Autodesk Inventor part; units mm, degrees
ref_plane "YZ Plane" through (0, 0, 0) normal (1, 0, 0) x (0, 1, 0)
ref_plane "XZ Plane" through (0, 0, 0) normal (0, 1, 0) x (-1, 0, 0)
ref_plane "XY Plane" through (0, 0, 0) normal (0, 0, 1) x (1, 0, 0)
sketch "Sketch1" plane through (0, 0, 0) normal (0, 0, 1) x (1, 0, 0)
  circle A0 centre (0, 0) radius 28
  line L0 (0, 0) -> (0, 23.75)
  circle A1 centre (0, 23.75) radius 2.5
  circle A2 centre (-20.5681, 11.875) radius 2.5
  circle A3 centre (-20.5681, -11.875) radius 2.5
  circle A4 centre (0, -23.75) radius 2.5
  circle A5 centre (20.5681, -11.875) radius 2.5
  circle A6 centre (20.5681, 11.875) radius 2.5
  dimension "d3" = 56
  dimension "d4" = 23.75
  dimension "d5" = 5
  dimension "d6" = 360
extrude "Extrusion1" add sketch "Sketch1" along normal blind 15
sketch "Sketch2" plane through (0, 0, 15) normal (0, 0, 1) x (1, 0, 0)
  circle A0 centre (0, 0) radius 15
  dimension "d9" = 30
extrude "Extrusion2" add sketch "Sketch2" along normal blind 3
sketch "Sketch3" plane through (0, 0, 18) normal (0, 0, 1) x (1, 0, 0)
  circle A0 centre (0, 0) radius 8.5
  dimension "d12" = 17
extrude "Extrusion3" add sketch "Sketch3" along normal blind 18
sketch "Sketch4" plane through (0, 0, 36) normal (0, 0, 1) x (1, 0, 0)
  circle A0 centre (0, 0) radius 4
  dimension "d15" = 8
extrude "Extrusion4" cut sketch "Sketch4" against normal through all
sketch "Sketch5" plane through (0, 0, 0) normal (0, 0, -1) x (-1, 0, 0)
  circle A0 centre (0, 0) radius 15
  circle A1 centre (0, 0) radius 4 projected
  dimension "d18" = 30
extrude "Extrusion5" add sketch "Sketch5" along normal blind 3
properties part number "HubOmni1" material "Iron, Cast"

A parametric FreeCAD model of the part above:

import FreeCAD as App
import Part
import Sketcher

V = App.Vector
Q = App.Units.Quantity

doc = App.newDocument("Part")
body = doc.addObject("PartDesign::Body", "Body")

# Sketch on XY plane
sketch1 = doc.addObject("Sketcher::SketchObject", "Sketch")
body.addObject(sketch1)
sketch1.AttachmentSupport = (doc.XY_Plane, [""])
sketch1.MapMode = "FlatFace"
sketch1.addGeometry([
    Part.Circle(V(0, 0, 0), V(0, 0, 1), 28),  # 0
    Part.Circle(V(-20.6, -11.9, 0), V(0, 0, 1), 2.5),  # 1
    Part.Circle(V(0, -23.8, 0), V(0, 0, 1), 2.5),  # 2
    Part.Circle(V(20.6, -11.9, 0), V(0, 0, 1), 2.5),  # 3
    Part.Circle(V(-20.6, 11.9, 0), V(0, 0, 1), 2.5),  # 4
    Part.Circle(V(20.6, 11.9, 0), V(0, 0, 1), 2.5),  # 5
    Part.Circle(V(0, 23.8, 0), V(0, 0, 1), 2.5),  # 6
], False)
sketch1.addConstraint([
    Sketcher.Constraint("Coincident", 0, 3, -1, 1),
    Sketcher.Constraint("Equal", 1, 2),
    Sketcher.Constraint("Equal", 2, 3),
    Sketcher.Constraint("Equal", 3, 4),
    Sketcher.Constraint("Equal", 4, 5),
    Sketcher.Constraint("Equal", 5, 6),
    Sketcher.Constraint("Symmetric", 3, 3, 4, 3, -1, 1),
    Sketcher.Constraint("Symmetric", 1, 3, 5, 3, -1, 1),
    Sketcher.Constraint("Symmetric", 2, 3, 6, 3, -1, 1),
    Sketcher.Constraint("Symmetric", 1, 3, 3, 3, -2),
    Sketcher.Constraint("PointOnObject", 2, 3, -2),
    Sketcher.Constraint("Diameter", 0, Q("56 mm")),
    Sketcher.Constraint("Diameter", 1, Q("5 mm")),
    Sketcher.Constraint("DistanceY", 2, 3, -1, 1, Q("23.75 mm")),
    Sketcher.Constraint("DistanceY", 1, 3, 4, 3, Q("23.75 mm")),
    Sketcher.Constraint("DistanceX", 1, 3, -1, 1, Q("20.568 mm")),
])
pad1 = doc.addObject("PartDesign::Pad", "Pad")
body.addObject(pad1)
pad1.Profile = sketch1
pad1.Length = 15

# Sketch on XY plane
sketch2 = doc.addObject("Sketcher::SketchObject", "Sketch001")
body.addObject(sketch2)
sketch2.AttachmentSupport = (doc.XY_Plane, [""])
sketch2.MapMode = "FlatFace"
sketch2.AttachmentOffset = App.Placement(V(0, 0, 15), App.Rotation())
sketch2.addGeometry(Part.Circle(V(0, 0, 0), V(0, 0, 1), 15), False)
sketch2.addConstraint([
    Sketcher.Constraint("Coincident", 0, 3, -1, 1),
    Sketcher.Constraint("Diameter", 0, Q("30 mm")),
])
pad2 = doc.addObject("PartDesign::Pad", "Pad001")
body.addObject(pad2)
pad2.Profile = sketch2
pad2.Length = 3

# Sketch on XY plane
sketch3 = doc.addObject("Sketcher::SketchObject", "Sketch002")
body.addObject(sketch3)
sketch3.AttachmentSupport = (doc.XY_Plane, [""])
sketch3.MapMode = "FlatFace"
sketch3.AttachmentOffset = App.Placement(V(0, 0, 18), App.Rotation())
sketch3.addGeometry(Part.Circle(V(0, 0, 0), V(0, 0, 1), 8), False)
sketch3.addConstraint([
    Sketcher.Constraint("Coincident", 0, 3, -1, 1),
    Sketcher.Constraint("Diameter", 0, Q("17 mm")),
])
pad3 = doc.addObject("PartDesign::Pad", "Pad002")
body.addObject(pad3)
pad3.Profile = sketch3
pad3.Length = 18

# Sketch on XY plane
sketch4 = doc.addObject("Sketcher::SketchObject", "Sketch003")
body.addObject(sketch4)
sketch4.AttachmentSupport = (doc.XY_Plane, [""])
sketch4.MapMode = "FlatFace"
sketch4.AttachmentOffset = App.Placement(V(0, 0, 36), App.Rotation())
sketch4.addGeometry(Part.Circle(V(0, 0, 0), V(0, 0, 1), 4), False)
sketch4.addConstraint([
    Sketcher.Constraint("Coincident", 0, 3, -1, 1),
    Sketcher.Constraint("Diameter", 0, Q("8 mm")),
])
pocket1 = doc.addObject("PartDesign::Pocket", "Pocket")
body.addObject(pocket1)
pocket1.Profile = sketch4
pocket1.Type = "ThroughAll"

# Sketch on XY plane
sketch5 = doc.addObject("Sketcher::SketchObject", "Sketch004")
body.addObject(sketch5)
sketch5.AttachmentSupport = (doc.XY_Plane, [""])
sketch5.MapMode = "FlatFace"
sketch5.addGeometry([
    Part.Circle(V(0, 0, 0), V(0, 0, 1), 15),
    Part.Circle(V(0, 0, 0), V(0, 0, 1), 4),
], False)
sketch5.addConstraint([
    Sketcher.Constraint("Coincident", 0, 3, -1, 1),
    Sketcher.Constraint("Coincident", 1, 3, -1, 1),
    Sketcher.Constraint("Diameter", 0, Q("30 mm")),
    Sketcher.Constraint("Diameter", 1, Q("8 mm")),
])
pad4 = doc.addObject("PartDesign::Pad", "Pad003")
body.addObject(pad4)
pad4.Profile = sketch5
pad4.Length = 3
pad4.Reversed = True

doc.recompute()
